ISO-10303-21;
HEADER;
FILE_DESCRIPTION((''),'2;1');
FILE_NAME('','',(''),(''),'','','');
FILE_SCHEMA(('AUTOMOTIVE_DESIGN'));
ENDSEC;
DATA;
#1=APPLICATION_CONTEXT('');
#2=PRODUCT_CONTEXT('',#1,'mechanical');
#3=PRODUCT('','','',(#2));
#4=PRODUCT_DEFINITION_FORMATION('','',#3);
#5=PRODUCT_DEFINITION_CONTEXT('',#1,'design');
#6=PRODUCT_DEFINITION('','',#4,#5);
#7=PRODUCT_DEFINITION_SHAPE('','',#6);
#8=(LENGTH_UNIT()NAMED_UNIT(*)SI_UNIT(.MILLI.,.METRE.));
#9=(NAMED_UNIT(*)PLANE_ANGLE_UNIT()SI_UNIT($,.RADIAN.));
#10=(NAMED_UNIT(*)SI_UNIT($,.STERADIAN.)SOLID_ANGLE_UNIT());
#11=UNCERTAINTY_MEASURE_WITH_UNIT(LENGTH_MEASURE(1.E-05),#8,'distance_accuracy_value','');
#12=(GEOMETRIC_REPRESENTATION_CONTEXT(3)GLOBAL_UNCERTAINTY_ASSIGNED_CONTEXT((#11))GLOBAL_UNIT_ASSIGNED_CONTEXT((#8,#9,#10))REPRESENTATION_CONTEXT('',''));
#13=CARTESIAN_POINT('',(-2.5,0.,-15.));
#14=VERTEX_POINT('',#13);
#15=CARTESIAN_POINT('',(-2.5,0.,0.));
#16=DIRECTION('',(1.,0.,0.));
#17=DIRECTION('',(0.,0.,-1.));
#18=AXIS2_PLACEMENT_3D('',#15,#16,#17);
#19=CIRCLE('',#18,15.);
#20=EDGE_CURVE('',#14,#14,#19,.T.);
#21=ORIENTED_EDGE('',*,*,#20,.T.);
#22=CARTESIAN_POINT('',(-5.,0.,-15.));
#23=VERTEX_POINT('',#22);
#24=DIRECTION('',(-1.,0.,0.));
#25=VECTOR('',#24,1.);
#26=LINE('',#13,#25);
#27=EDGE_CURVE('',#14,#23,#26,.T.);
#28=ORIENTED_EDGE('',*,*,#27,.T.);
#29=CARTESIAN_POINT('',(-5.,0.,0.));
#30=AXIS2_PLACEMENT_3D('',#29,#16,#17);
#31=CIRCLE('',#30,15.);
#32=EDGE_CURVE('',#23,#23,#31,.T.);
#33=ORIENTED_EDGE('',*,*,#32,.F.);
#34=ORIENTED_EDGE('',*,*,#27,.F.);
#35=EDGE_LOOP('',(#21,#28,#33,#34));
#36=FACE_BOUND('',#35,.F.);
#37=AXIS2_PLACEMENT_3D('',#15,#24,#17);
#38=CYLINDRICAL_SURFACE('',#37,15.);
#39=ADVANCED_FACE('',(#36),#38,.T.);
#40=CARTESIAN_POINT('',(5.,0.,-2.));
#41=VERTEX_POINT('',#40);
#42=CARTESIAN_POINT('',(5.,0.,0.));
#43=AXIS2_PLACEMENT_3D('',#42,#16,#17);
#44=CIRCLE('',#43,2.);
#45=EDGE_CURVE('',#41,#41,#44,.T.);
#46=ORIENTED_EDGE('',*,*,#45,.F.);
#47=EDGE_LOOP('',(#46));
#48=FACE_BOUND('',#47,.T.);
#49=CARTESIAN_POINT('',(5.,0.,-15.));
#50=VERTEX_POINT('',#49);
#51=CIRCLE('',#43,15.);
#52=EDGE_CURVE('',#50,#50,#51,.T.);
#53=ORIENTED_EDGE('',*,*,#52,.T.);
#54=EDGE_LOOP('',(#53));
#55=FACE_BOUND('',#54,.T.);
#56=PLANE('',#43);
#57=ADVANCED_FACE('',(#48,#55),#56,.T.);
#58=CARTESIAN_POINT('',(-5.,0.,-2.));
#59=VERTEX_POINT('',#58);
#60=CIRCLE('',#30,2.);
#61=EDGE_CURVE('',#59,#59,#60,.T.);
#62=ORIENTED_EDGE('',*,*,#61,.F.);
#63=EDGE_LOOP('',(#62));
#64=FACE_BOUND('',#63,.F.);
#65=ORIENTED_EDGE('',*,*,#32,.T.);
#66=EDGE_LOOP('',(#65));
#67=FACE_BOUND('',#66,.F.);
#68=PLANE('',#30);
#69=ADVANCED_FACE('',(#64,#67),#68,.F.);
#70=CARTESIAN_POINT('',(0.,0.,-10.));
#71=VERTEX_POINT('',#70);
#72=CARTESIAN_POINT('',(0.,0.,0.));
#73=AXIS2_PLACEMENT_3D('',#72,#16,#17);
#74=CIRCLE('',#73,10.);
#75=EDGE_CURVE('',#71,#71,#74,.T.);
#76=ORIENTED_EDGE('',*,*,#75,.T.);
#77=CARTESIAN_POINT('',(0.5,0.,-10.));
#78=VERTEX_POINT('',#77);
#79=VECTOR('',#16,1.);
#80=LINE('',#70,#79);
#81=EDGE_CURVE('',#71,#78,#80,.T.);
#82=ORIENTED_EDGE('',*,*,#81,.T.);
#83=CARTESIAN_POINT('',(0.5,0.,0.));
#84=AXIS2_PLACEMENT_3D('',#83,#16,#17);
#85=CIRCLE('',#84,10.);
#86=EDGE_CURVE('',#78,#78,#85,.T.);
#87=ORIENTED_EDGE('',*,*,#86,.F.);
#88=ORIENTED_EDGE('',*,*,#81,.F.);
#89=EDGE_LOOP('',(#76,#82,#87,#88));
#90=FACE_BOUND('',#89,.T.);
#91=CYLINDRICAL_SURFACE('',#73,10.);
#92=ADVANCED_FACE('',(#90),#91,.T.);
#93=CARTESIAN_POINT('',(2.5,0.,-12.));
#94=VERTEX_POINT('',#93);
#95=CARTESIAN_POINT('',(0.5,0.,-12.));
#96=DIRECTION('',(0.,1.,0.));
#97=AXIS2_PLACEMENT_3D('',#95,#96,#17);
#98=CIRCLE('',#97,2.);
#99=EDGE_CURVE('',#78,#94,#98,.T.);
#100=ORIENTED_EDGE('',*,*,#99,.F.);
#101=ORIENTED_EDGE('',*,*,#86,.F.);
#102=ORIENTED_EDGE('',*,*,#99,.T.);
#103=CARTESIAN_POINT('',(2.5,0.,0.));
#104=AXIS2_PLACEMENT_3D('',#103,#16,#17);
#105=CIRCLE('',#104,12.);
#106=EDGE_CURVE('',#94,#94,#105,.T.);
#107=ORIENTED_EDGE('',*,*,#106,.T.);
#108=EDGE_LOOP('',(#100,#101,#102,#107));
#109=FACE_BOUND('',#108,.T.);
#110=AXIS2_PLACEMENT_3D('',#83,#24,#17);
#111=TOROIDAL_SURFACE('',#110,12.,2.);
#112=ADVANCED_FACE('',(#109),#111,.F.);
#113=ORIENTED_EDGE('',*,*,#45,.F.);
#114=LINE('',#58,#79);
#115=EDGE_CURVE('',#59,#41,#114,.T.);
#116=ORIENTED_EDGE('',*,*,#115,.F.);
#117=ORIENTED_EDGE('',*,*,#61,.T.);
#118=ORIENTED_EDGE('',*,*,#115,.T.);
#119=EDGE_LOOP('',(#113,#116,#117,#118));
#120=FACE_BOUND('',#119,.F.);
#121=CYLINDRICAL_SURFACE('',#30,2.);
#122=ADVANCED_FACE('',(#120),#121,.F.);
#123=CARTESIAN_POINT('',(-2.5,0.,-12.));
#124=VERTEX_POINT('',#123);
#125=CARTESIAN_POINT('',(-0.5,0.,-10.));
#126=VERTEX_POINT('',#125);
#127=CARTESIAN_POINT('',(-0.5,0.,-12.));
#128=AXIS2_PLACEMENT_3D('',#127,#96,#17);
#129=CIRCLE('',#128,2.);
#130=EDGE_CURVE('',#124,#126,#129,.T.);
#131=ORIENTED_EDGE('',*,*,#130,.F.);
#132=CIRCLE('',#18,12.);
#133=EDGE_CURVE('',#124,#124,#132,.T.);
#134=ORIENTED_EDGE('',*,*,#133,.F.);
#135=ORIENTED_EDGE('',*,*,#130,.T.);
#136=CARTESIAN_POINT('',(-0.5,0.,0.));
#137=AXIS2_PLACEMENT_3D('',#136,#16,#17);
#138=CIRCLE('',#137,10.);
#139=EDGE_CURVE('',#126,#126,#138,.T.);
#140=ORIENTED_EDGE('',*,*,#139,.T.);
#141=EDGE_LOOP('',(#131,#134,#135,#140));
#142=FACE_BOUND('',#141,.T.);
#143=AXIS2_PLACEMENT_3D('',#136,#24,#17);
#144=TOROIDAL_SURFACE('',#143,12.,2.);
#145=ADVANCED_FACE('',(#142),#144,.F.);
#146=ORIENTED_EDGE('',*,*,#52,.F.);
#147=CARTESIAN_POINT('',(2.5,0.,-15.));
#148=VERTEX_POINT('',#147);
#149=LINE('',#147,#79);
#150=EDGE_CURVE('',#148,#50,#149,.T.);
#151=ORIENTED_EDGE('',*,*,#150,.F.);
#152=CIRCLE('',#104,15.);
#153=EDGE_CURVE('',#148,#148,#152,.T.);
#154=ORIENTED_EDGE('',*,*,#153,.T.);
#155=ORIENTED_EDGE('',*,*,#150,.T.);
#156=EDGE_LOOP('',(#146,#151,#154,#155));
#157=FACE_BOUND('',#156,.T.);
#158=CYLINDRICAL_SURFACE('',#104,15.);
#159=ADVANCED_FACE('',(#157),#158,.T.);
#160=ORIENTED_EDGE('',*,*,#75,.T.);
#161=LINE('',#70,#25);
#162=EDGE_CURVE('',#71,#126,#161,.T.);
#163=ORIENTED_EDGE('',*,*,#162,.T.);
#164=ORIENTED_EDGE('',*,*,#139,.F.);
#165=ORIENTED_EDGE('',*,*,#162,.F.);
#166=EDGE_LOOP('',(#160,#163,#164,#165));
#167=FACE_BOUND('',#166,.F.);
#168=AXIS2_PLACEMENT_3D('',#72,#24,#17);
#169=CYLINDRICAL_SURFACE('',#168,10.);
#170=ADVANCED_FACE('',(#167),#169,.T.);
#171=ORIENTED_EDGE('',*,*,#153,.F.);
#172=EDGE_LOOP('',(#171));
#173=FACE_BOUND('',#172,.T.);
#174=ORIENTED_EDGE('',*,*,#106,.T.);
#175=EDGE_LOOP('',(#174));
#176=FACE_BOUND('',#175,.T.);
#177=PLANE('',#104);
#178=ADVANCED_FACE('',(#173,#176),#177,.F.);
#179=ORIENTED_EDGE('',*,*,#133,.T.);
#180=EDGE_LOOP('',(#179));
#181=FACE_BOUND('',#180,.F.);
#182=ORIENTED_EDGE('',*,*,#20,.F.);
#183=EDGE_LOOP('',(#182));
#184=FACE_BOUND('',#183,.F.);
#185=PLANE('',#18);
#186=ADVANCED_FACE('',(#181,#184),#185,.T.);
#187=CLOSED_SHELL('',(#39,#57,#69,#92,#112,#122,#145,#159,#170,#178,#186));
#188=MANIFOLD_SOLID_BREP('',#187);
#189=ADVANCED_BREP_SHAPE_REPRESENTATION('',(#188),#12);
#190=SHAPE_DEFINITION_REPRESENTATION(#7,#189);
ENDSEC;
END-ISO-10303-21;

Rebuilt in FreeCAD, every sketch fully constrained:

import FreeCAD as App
import Part
import Sketcher
from FreeCAD import Vector


def edges_at(feature, points):
    """Names of the edges that pass closest to the given points."""
    edges = feature.Shape.Edges
    near = lambda p: min(range(len(edges)), key=lambda i: edges[i].distToShape(Part.Vertex(*p))[0])
    return sorted({f"Edge{near(p) + 1}" for p in points})

doc = App.newDocument("Part")
body = doc.addObject("PartDesign::Body", "Body")

# Sketch on XZ plane
sketch1 = body.newObject("Sketcher::SketchObject", "Sketch")
sketch1.AttachmentSupport = (doc.getObject("XZ_Plane"), [""])
sketch1.MapMode = "FlatFace"
sketch1.addGeometry([
    Part.LineSegment(Vector(2.5, -10, 0), Vector(-2.5, -10, 0)),  # 0
    Part.LineSegment(Vector(-2.5, -10, 0), Vector(-2.5, -15, 0)),  # 1
    Part.LineSegment(Vector(-2.5, -15, 0), Vector(-5, -15, 0)),  # 2
    Part.LineSegment(Vector(-5, -15, 0), Vector(-5, -2, 0)),  # 3
    Part.LineSegment(Vector(-5, -2, 0), Vector(5, -2, 0)),  # 4
    Part.LineSegment(Vector(5, -2, 0), Vector(5, -15, 0)),  # 5
    Part.LineSegment(Vector(5, -15, 0), Vector(2.5, -15, 0)),  # 6
    Part.LineSegment(Vector(2.5, -15, 0), Vector(2.5, -10, 0)),  # 7
], False)
sketch1.addConstraint([
    Sketcher.Constraint("Coincident", 0, 2, 1, 1),
    Sketcher.Constraint("Coincident", 1, 2, 2, 1),
    Sketcher.Constraint("Coincident", 2, 2, 3, 1),
    Sketcher.Constraint("Coincident", 3, 2, 4, 1),
    Sketcher.Constraint("Coincident", 4, 2, 5, 1),
    Sketcher.Constraint("Coincident", 5, 2, 6, 1),
    Sketcher.Constraint("Coincident", 6, 2, 7, 1),
    Sketcher.Constraint("Coincident", 7, 2, 0, 1),
    Sketcher.Constraint("Horizontal", 0),
    Sketcher.Constraint("Vertical", 1),
    Sketcher.Constraint("Horizontal", 2),
    Sketcher.Constraint("Vertical", 3),
    Sketcher.Constraint("Horizontal", 4),
    Sketcher.Constraint("Vertical", 5),
    Sketcher.Constraint("Horizontal", 6),
    Sketcher.Constraint("Vertical", 7),
    Sketcher.Constraint("Symmetric", 2, 2, 5, 2, -2),
    Sketcher.Constraint("Equal", 2, 6),
    Sketcher.Constraint("Equal", 0, 1),
    Sketcher.Constraint("DistanceX", 0, 2, 0, 1, 5.0),
    Sketcher.Constraint("DistanceX", 4, 1, 4, 2, 10.0),
    Sketcher.Constraint("DistanceY", 0, 2, -1, 1, 10.0),
    Sketcher.Constraint("DistanceY", 3, 2, -1, 1, 2.0),
])
revolution = body.newObject("PartDesign::Revolution", "Revolution")
revolution.Profile = sketch1
revolution.ReferenceAxis = (sketch1, ["H_Axis"])
revolution.Angle = 360
doc.recompute()

fillet = body.newObject("PartDesign::Fillet", "Fillet")
fillet.Base = (revolution, edges_at(revolution, [(-2.5, 0, 10), (2.5, 0, 10)]))
fillet.Radius = 2

doc.recompute()
